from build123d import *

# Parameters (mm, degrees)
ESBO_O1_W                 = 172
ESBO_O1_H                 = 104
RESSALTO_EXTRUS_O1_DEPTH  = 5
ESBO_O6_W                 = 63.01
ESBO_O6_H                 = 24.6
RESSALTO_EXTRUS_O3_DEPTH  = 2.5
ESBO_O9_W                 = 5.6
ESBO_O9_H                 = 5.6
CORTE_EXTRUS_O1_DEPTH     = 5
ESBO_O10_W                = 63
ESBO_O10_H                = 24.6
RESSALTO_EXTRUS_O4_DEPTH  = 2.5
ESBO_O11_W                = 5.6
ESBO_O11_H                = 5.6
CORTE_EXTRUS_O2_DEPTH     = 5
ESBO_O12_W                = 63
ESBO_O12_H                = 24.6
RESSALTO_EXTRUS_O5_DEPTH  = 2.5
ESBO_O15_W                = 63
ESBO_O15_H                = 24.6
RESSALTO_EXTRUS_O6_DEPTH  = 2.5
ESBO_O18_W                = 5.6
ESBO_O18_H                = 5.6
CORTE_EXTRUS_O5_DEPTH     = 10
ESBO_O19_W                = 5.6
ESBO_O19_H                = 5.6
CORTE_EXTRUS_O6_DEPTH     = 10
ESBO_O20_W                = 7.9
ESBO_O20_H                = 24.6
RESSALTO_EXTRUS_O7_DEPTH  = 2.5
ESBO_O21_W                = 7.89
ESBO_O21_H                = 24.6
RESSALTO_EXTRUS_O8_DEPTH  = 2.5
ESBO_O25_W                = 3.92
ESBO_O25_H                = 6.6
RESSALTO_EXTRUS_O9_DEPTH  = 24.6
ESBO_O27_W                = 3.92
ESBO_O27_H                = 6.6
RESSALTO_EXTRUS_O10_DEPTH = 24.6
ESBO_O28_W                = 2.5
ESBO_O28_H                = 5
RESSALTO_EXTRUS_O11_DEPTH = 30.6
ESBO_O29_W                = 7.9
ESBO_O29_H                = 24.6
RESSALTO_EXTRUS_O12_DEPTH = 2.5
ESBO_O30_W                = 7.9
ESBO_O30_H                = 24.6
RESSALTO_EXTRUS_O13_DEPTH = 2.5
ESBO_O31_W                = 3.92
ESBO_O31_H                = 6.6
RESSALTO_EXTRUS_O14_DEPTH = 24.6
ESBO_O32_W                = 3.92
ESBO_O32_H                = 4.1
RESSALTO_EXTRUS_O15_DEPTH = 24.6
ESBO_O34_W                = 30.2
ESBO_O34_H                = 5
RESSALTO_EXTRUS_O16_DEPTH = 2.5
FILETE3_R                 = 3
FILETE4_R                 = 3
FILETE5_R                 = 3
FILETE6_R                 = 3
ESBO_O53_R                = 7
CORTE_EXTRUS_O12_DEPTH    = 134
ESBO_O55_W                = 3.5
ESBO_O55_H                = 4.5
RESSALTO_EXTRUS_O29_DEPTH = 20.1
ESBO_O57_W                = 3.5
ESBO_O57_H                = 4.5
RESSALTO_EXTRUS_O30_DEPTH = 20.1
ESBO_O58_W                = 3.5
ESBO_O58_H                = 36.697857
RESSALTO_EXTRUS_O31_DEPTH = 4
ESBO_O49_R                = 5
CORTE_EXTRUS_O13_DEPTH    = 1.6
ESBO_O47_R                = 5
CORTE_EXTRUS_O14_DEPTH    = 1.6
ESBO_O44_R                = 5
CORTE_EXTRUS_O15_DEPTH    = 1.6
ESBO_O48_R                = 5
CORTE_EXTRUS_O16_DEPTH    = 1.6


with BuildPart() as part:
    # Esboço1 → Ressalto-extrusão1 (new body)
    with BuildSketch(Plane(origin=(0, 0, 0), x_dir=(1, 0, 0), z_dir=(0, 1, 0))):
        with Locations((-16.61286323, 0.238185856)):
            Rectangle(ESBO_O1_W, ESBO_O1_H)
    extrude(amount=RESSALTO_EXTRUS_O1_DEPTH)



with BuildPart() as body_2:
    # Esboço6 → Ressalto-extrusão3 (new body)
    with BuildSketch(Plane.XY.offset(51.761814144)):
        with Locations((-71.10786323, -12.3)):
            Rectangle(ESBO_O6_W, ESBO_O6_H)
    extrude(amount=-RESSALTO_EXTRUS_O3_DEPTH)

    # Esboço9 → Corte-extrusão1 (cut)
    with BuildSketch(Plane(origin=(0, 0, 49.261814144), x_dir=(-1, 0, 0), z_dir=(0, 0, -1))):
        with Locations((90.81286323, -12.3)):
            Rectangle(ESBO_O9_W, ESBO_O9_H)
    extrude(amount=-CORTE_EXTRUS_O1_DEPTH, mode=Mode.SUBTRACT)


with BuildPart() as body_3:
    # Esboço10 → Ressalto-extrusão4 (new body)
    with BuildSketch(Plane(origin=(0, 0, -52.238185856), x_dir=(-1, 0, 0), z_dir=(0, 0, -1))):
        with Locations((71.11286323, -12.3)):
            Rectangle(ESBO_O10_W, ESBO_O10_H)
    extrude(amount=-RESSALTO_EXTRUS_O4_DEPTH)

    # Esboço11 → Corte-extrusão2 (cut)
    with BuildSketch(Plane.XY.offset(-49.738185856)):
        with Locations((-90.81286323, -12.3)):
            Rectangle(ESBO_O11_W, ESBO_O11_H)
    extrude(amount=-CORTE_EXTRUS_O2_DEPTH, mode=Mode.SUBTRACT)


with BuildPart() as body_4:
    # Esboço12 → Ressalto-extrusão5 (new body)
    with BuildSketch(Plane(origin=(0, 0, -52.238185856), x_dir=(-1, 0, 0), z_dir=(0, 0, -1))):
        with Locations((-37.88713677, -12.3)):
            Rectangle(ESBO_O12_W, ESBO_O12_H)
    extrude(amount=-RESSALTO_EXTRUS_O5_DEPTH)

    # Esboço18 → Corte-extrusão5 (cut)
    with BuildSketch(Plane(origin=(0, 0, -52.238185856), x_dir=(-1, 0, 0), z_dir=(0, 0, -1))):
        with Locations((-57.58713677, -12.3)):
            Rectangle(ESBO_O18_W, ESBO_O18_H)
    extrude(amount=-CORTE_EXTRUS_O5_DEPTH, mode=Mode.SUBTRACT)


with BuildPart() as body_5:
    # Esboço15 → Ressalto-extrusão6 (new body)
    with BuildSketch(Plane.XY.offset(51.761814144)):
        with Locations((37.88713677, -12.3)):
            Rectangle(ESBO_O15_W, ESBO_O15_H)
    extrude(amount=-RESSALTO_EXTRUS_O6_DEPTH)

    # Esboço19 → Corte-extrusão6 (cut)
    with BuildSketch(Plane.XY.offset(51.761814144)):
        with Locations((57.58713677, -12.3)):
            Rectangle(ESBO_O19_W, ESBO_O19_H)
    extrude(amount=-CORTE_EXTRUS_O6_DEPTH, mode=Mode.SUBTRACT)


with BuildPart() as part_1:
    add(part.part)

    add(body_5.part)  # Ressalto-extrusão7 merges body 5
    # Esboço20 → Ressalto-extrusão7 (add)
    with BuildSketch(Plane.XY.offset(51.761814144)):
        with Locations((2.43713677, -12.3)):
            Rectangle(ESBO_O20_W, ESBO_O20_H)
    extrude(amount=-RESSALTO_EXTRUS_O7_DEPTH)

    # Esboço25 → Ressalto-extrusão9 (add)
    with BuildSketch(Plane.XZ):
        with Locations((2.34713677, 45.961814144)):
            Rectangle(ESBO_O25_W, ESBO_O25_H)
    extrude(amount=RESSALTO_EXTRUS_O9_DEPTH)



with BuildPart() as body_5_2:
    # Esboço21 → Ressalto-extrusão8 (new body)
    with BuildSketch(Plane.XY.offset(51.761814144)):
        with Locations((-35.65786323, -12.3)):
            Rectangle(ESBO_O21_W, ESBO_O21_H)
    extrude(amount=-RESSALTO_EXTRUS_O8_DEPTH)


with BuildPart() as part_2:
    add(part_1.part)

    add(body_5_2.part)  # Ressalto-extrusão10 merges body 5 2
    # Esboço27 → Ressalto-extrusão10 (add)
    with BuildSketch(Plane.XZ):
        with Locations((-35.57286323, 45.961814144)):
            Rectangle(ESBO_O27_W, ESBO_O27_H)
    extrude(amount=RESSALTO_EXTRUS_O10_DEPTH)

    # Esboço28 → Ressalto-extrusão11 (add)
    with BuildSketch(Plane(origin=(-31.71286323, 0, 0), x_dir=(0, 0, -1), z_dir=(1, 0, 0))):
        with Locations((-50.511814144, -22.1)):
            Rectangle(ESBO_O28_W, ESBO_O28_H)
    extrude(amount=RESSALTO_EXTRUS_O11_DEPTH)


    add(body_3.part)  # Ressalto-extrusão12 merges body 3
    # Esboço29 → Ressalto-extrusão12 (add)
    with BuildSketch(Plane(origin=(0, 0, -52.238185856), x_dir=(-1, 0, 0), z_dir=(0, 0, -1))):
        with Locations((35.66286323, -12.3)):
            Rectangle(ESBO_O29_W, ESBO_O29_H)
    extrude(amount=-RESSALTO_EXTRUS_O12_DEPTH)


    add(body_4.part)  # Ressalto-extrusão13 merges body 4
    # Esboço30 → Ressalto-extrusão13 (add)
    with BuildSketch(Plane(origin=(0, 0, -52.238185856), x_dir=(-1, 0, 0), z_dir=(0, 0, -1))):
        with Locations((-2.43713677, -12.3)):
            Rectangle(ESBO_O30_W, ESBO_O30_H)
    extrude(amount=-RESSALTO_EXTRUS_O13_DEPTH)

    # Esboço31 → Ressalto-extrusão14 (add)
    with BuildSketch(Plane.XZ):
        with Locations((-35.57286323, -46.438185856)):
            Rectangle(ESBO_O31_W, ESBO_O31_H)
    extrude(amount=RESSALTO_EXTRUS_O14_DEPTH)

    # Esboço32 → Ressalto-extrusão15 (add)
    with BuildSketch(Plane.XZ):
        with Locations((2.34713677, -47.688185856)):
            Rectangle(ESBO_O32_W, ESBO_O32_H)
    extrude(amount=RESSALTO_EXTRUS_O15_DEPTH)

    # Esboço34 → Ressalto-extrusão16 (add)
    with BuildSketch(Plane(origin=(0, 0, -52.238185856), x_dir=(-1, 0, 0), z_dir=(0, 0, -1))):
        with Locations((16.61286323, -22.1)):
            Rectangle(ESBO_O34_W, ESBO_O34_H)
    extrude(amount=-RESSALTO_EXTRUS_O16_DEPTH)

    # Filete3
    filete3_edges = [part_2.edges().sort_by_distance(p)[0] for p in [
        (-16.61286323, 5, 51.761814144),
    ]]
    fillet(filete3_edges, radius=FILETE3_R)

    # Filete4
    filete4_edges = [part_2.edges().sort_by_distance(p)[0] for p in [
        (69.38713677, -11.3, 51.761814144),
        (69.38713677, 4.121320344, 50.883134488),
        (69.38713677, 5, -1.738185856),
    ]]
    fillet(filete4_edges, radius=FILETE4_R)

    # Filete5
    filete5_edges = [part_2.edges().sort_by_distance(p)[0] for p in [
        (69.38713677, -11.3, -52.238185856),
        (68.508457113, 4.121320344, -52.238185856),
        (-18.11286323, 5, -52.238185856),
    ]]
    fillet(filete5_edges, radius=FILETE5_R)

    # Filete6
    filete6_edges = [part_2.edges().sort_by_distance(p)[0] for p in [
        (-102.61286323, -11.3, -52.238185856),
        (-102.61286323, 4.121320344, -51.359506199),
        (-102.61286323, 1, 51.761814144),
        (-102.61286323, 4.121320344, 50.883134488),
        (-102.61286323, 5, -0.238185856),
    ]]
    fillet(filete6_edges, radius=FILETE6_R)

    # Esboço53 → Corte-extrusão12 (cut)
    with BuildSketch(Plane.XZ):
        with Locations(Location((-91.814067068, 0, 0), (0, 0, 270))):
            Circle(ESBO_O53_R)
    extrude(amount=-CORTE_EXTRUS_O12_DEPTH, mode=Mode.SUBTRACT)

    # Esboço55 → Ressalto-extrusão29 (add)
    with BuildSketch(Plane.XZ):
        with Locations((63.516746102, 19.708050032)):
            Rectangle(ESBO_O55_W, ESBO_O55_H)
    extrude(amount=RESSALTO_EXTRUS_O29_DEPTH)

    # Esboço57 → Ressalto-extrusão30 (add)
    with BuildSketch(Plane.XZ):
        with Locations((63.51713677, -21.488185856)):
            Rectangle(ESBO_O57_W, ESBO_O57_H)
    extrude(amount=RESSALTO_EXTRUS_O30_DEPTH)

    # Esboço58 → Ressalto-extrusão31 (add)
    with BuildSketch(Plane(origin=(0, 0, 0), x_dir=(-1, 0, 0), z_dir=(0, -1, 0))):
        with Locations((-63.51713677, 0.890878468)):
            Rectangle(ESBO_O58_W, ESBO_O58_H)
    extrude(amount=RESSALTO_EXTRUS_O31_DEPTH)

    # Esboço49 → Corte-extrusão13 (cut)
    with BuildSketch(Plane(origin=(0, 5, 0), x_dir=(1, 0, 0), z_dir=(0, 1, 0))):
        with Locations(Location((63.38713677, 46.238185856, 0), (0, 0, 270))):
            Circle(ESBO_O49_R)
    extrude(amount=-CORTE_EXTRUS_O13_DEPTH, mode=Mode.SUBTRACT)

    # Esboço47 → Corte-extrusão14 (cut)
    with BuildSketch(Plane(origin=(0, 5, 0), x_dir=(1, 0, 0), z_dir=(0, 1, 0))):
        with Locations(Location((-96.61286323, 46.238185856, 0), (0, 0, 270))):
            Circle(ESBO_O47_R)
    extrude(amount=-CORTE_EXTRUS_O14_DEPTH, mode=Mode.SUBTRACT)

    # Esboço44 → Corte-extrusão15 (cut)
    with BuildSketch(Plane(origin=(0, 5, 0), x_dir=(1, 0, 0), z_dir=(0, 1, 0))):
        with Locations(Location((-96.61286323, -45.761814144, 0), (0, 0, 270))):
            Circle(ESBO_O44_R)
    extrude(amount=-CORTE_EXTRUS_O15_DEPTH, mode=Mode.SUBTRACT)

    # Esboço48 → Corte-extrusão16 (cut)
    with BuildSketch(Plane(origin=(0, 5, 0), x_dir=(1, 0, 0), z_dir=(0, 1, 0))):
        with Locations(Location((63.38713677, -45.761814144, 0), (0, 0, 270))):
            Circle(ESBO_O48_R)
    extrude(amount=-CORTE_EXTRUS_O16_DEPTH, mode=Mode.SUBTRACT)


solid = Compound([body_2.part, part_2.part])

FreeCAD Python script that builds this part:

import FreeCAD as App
import Part
import Sketcher
Q = App.Units.Quantity


def edges_at(feature, points):
    """Names of the edges that pass closest to the given points."""
    edges = feature.Shape.Edges
    near = lambda p: min(range(len(edges)), key=lambda i: edges[i].distToShape(Part.Vertex(*p))[0])
    return sorted({f"Edge{near(p) + 1}" for p in points})


def add_polygon(sketch, points):
    """Adds a closed chain of lines whose ends are joined by coincident constraints."""
    first, n = sketch.GeometryCount, len(points)
    for a, b in zip(points, points[1:] + points[:1]):
        sketch.addGeometry(Part.LineSegment(App.Vector(*a, 0), App.Vector(*b, 0)), False)
    for i in range(n):
        sketch.addConstraint(Sketcher.Constraint("Coincident", first + i, 2, first + (i + 1) % n, 1))

doc = App.newDocument("Part")
body = doc.addObject("PartDesign::Body", "Body")

# Sketch on XZ plane
sketch1 = body.newObject("Sketcher::SketchObject", "Sketch")
sketch1.AttachmentSupport = (doc.getObject("XZ_Plane"), [""])
sketch1.MapMode = "FlatFace"
add_polygon(sketch1, [(-103, -52), (-103, 52), (69, 52), (69, -52)])  # lines 0-3
sketch1.addConstraint([
    Sketcher.Constraint("Vertical", 0),
    Sketcher.Constraint("Horizontal", 1),
    Sketcher.Constraint("Vertical", 2),
    Sketcher.Constraint("Horizontal", 3),
    Sketcher.Constraint("DistanceX", 1, 1, 1, 2, Q("172 mm")),
    Sketcher.Constraint("DistanceY", 0, 1, 0, 2, Q("104 mm")),
    Sketcher.Constraint("DistanceX", 0, 2, -1, 1, Q("102.612863 mm")),
    Sketcher.Constraint("DistanceY", -1, 1, 0, 2, Q("51.761814 mm")),
])
pad1 = body.newObject("PartDesign::Pad", "Pad")
pad1.Profile = sketch1
pad1.Length = 5
pad1.Reversed = True
body2 = doc.addObject("PartDesign::Body", "Body001")

# Sketch on XY plane
sketch2 = body2.newObject("Sketcher::SketchObject", "Sketch001")
sketch2.AttachmentSupport = (doc.getObject("XY_Plane001"), [""])
sketch2.MapMode = "FlatFace"
sketch2.AttachmentOffset = App.Placement(App.Vector(0, 0, 51.761814), App.Rotation())
add_polygon(sketch2, [(-103, 0), (-103, -25), (-40, -25), (-40, 0)])  # lines 0-3
sketch2.addConstraint([
    Sketcher.Constraint("Vertical", 0),
    Sketcher.Constraint("Horizontal", 1),
    Sketcher.Constraint("Vertical", 2),
    Sketcher.Constraint("Horizontal", 3),
    Sketcher.Constraint("PointOnObject", 2, 2, -1),
    Sketcher.Constraint("DistanceY", 0, 2, 0, 1, Q("24.6 mm")),
    Sketcher.Constraint("DistanceX", 1, 1, 1, 2, Q("63.01 mm")),
    Sketcher.Constraint("DistanceX", 0, 2, -1, 1, Q("102.612863 mm")),
])
pad2 = body2.newObject("PartDesign::Pad", "Pad001")
pad2.Profile = sketch2
pad2.Length = 2.5
pad2.Reversed = True

# Sketch on XY plane
sketch3 = body2.newObject("Sketcher::SketchObject", "Sketch002")
sketch3.AttachmentSupport = (doc.getObject("XY_Plane001"), [""])
sketch3.MapMode = "FlatFace"
sketch3.AttachmentOffset = App.Placement(App.Vector(0, 0, 49.261814), App.Rotation())
add_polygon(sketch3, [(-88, -10), (-88, -15), (-94, -15), (-94, -10)])  # lines 0-3
sketch3.addConstraint([
    Sketcher.Constraint("Vertical", 0),
    Sketcher.Constraint("Horizontal", 1),
    Sketcher.Constraint("Vertical", 2),
    Sketcher.Constraint("Horizontal", 3),
    Sketcher.Constraint("Equal", 3, 0),
    Sketcher.Constraint("DistanceX", 1, 2, 1, 1, Q("5.6 mm")),
    Sketcher.Constraint("DistanceY", 0, 2, -1, 1, Q("15.1 mm")),
    Sketcher.Constraint("DistanceX", 0, 2, -1, 1, Q("88.012863 mm")),
])
pocket1 = body2.newObject("PartDesign::Pocket", "Pocket")
pocket1.Profile = sketch3
pocket1.Length = 5
pocket1.Reversed = True
body3 = doc.addObject("PartDesign::Body", "Body002")

# Sketch on XY plane
sketch4 = body3.newObject("Sketcher::SketchObject", "Sketch003")
sketch4.AttachmentSupport = (doc.getObject("XY_Plane002"), [""])
sketch4.MapMode = "FlatFace"
sketch4.AttachmentOffset = App.Placement(App.Vector(0, 0, -52.238186), App.Rotation())
add_polygon(sketch4, [(-40, 0), (-40, -25), (-103, -25), (-103, 0)])  # lines 0-3
sketch4.addConstraint([
    Sketcher.Constraint("Vertical", 0),
    Sketcher.Constraint("Horizontal", 1),
    Sketcher.Constraint("Vertical", 2),
    Sketcher.Constraint("Horizontal", 3),
    Sketcher.Constraint("PointOnObject", 2, 2, -1),
    Sketcher.Constraint("DistanceX", 1, 2, 1, 1, Q("63 mm")),
    Sketcher.Constraint("DistanceY", 0, 2, 0, 1, Q("24.6 mm")),
    Sketcher.Constraint("DistanceX", 0, 2, -1, 1, Q("39.612863 mm")),
])
pad3 = body3.newObject("PartDesign::Pad", "Pad002")
pad3.Profile = sketch4
pad3.Length = 2.5

# Sketch on XY plane
sketch5 = body3.newObject("Sketcher::SketchObject", "Sketch004")
sketch5.AttachmentSupport = (doc.getObject("XY_Plane002"), [""])
sketch5.MapMode = "FlatFace"
sketch5.AttachmentOffset = App.Placement(App.Vector(0, 0, -49.738186), App.Rotation())
add_polygon(sketch5, [(-94, -10), (-94, -15), (-88, -15), (-88, -10)])  # lines 0-3
sketch5.addConstraint([
    Sketcher.Constraint("Vertical", 0),
    Sketcher.Constraint("Horizontal", 1),
    Sketcher.Constraint("Vertical", 2),
    Sketcher.Constraint("Horizontal", 3),
    Sketcher.Constraint("Equal", 3, 0),
    Sketcher.Constraint("DistanceX", 1, 1, 1, 2, Q("5.6 mm")),
    Sketcher.Constraint("DistanceY", 0, 2, -1, 1, Q("15.1 mm")),
    Sketcher.Constraint("DistanceX", 0, 2, -1, 1, Q("93.612863 mm")),
])
pocket2 = body3.newObject("PartDesign::Pocket", "Pocket001")
pocket2.Profile = sketch5
pocket2.Length = 5
body4 = doc.addObject("PartDesign::Body", "Body003")

# Sketch on XY plane
sketch6 = body4.newObject("Sketcher::SketchObject", "Sketch005")
sketch6.AttachmentSupport = (doc.getObject("XY_Plane003"), [""])
sketch6.MapMode = "FlatFace"
sketch6.AttachmentOffset = App.Placement(App.Vector(0, 0, -52.238186), App.Rotation())
add_polygon(sketch6, [(69, 0), (69, -25), (6, -25), (6, 0)])  # lines 0-3
sketch6.addConstraint([
    Sketcher.Constraint("Vertical", 0),
    Sketcher.Constraint("Horizontal", 1),
    Sketcher.Constraint("Vertical", 2),
    Sketcher.Constraint("Horizontal", 3),
    Sketcher.Constraint("PointOnObject", 2, 2, -1),
    Sketcher.Constraint("DistanceX", 1, 2, 1, 1, Q("63 mm")),
    Sketcher.Constraint("DistanceY", 0, 2, 0, 1, Q("24.6 mm")),
    Sketcher.Constraint("DistanceX", -1, 1, 0, 2, Q("69.387137 mm")),
])
pad4 = body4.newObject("PartDesign::Pad", "Pad003")
pad4.Profile = sketch6
pad4.Length = 2.5

# Sketch on XY plane
sketch7 = body4.newObject("Sketcher::SketchObject", "Sketch006")
sketch7.AttachmentSupport = (doc.getObject("XY_Plane003"), [""])
sketch7.MapMode = "FlatFace"
sketch7.AttachmentOffset = App.Placement(App.Vector(0, 0, -52.238186), App.Rotation())
add_polygon(sketch7, [(60, -10), (60, -15), (55, -15), (55, -10)])  # lines 0-3
sketch7.addConstraint([
    Sketcher.Constraint("Vertical", 0),
    Sketcher.Constraint("Horizontal", 1),
    Sketcher.Constraint("Vertical", 2),
    Sketcher.Constraint("Horizontal", 3),
    Sketcher.Constraint("Equal", 3, 0),
    Sketcher.Constraint("DistanceX", 1, 2, 1, 1, Q("5.6 mm")),
    Sketcher.Constraint("DistanceY", 0, 2, -1, 1, Q("15.1 mm")),
    Sketcher.Constraint("DistanceX", -1, 1, 0, 2, Q("60.387137 mm")),
])
pocket3 = body4.newObject("PartDesign::Pocket", "Pocket002")
pocket3.Profile = sketch7
pocket3.Length = 10
pocket3.Reversed = True
body5 = doc.addObject("PartDesign::Body", "Body004")

# Sketch on XY plane
sketch8 = body5.newObject("Sketcher::SketchObject", "Sketch007")
sketch8.AttachmentSupport = (doc.getObject("XY_Plane004"), [""])
sketch8.MapMode = "FlatFace"
sketch8.AttachmentOffset = App.Placement(App.Vector(0, 0, 51.761814), App.Rotation())
add_polygon(sketch8, [(6, 0), (6, -25), (69, -25), (69, 0)])  # lines 0-3
sketch8.addConstraint([
    Sketcher.Constraint("Vertical", 0),
    Sketcher.Constraint("Horizontal", 1),
    Sketcher.Constraint("Vertical", 2),
    Sketcher.Constraint("Horizontal", 3),
    Sketcher.Constraint("PointOnObject", 2, 2, -1),
    Sketcher.Constraint("DistanceX", 1, 1, 1, 2, Q("63 mm")),
    Sketcher.Constraint("DistanceY", 0, 2, 0, 1, Q("24.6 mm")),
    Sketcher.Constraint("DistanceX", -1, 1, 0, 2, Q("6.387137 mm")),
])
pad5 = body5.newObject("PartDesign::Pad", "Pad004")
pad5.Profile = sketch8
pad5.Length = 2.5
pad5.Reversed = True

# Sketch on XY plane
sketch9 = body5.newObject("Sketcher::SketchObject", "Sketch008")
sketch9.AttachmentSupport = (doc.getObject("XY_Plane004"), [""])
sketch9.MapMode = "FlatFace"
sketch9.AttachmentOffset = App.Placement(App.Vector(0, 0, 51.761814), App.Rotation())
add_polygon(sketch9, [(55, -10), (55, -15), (60, -15), (60, -10)])  # lines 0-3
sketch9.addConstraint([
    Sketcher.Constraint("Vertical", 0),
    Sketcher.Constraint("Horizontal", 1),
    Sketcher.Constraint("Vertical", 2),
    Sketcher.Constraint("Horizontal", 3),
    Sketcher.Constraint("Equal", 3, 0),
    Sketcher.Constraint("DistanceX", 1, 1, 1, 2, Q("5.6 mm")),
    Sketcher.Constraint("DistanceY", 0, 2, -1, 1, Q("15.1 mm")),
    Sketcher.Constraint("DistanceX", -1, 1, 0, 2, Q("54.787137 mm")),
])
pocket4 = body5.newObject("PartDesign::Pocket", "Pocket003")
pocket4.Profile = sketch9
pocket4.Length = 10
doc.recompute()

boolean = body.newObject("PartDesign::Boolean", "Boolean")
boolean.Type = "Fuse"
boolean.addObjects([body5])

# Sketch on XY plane
sketch10 = body.newObject("Sketcher::SketchObject", "Sketch009")
sketch10.AttachmentSupport = (doc.getObject("XY_Plane"), [""])
sketch10.MapMode = "FlatFace"
sketch10.AttachmentOffset = App.Placement(App.Vector(0, 0, 51.761814), App.Rotation())
add_polygon(sketch10, [(-2, 0), (-2, -25), (6, -25), (6, 0)])  # lines 0-3
sketch10.addConstraint([
    Sketcher.Constraint("Vertical", 0),
    Sketcher.Constraint("Horizontal", 1),
    Sketcher.Constraint("Vertical", 2),
    Sketcher.Constraint("Horizontal", 3),
    Sketcher.Constraint("PointOnObject", 2, 2, -1),
    Sketcher.Constraint("DistanceX", 1, 1, 1, 2, Q("7.9 mm")),
    Sketcher.Constraint("DistanceY", 0, 2, 0, 1, Q("24.6 mm")),
    Sketcher.Constraint("DistanceX", 0, 2, -1, 1, Q("1.512863 mm")),
])
pad6 = body.newObject("PartDesign::Pad", "Pad005")
pad6.Profile = sketch10
pad6.Length = 2.5
pad6.Reversed = True

# Sketch on XZ plane
sketch11 = body.newObject("Sketcher::SketchObject", "Sketch010")
sketch11.AttachmentSupport = (doc.getObject("XZ_Plane"), [""])
sketch11.MapMode = "FlatFace"
add_polygon(sketch11, [(0.4, 49.3), (0.4, 42.7), (4.3, 42.7), (4.3, 49.3)])  # lines 0-3
sketch11.addConstraint([
    Sketcher.Constraint("Vertical", 0),
    Sketcher.Constraint("Horizontal", 1),
    Sketcher.Constraint("Vertical", 2),
    Sketcher.Constraint("Horizontal", 3),
    Sketcher.Constraint("DistanceY", 0, 2, 0, 1, Q("6.6 mm")),
    Sketcher.Constraint("DistanceX", 1, 1, 1, 2, Q("3.92 mm")),
    Sketcher.Constraint("DistanceX", -1, 1, 0, 2, Q("0.387137 mm")),
    Sketcher.Constraint("DistanceY", -1, 1, 0, 2, Q("42.661814 mm")),
])
pad7 = body.newObject("PartDesign::Pad", "Pad006")
pad7.Profile = sketch11
pad7.Length = 24.6
body6 = doc.addObject("PartDesign::Body", "Body005")

# Sketch on XY plane
sketch12 = body6.newObject("Sketcher::SketchObject", "Sketch011")
sketch12.AttachmentSupport = (doc.getObject("XY_Plane005"), [""])
sketch12.MapMode = "FlatFace"
sketch12.AttachmentOffset = App.Placement(App.Vector(0, 0, 51.761814), App.Rotation())
add_polygon(sketch12, [(-40, 0), (-40, -25), (-32, -25), (-32, 0)])  # lines 0-3
sketch12.addConstraint([
    Sketcher.Constraint("Vertical", 0),
    Sketcher.Constraint("Horizontal", 1),
    Sketcher.Constraint("Vertical", 2),
    Sketcher.Constraint("Horizontal", 3),
    Sketcher.Constraint("PointOnObject", 2, 2, -1),
    Sketcher.Constraint("DistanceY", 0, 2, 0, 1, Q("24.6 mm")),
    Sketcher.Constraint("DistanceX", 1, 1, 1, 2, Q("7.89 mm")),
    Sketcher.Constraint("DistanceX", 0, 2, -1, 1, Q("39.602863 mm")),
])
pad8 = body6.newObject("PartDesign::Pad", "Pad007")
pad8.Profile = sketch12
pad8.Length = 2.5
pad8.Reversed = True
doc.recompute()

boolean2 = body.newObject("PartDesign::Boolean", "Boolean001")
boolean2.Type = "Fuse"
boolean2.addObjects([body6])

# Sketch on XZ plane
sketch13 = body.newObject("Sketcher::SketchObject", "Sketch012")
sketch13.AttachmentSupport = (doc.getObject("XZ_Plane"), [""])
sketch13.MapMode = "FlatFace"
add_polygon(sketch13, [(-37.5, 49.3), (-37.5, 42.7), (-33.6, 42.7), (-33.6, 49.3)])  # lines 0-3
sketch13.addConstraint([
    Sketcher.Constraint("Vertical", 0),
    Sketcher.Constraint("Horizontal", 1),
    Sketcher.Constraint("Vertical", 2),
    Sketcher.Constraint("Horizontal", 3),
    Sketcher.Constraint("DistanceY", 0, 2, 0, 1, Q("6.6 mm")),
    Sketcher.Constraint("DistanceX", 1, 1, 1, 2, Q("3.92 mm")),
    Sketcher.Constraint("DistanceX", 0, 2, -1, 1, Q("37.532863 mm")),
    Sketcher.Constraint("DistanceY", -1, 1, 0, 2, Q("42.661814 mm")),
])
pad9 = body.newObject("PartDesign::Pad", "Pad008")
pad9.Profile = sketch13
pad9.Length = 24.6

# Sketch on YZ plane
sketch14 = body.newObject("Sketcher::SketchObject", "Sketch013")
sketch14.AttachmentSupport = (doc.getObject("YZ_Plane"), [""])
sketch14.MapMode = "FlatFace"
sketch14.AttachmentOffset = App.Placement(App.Vector(0, 0, -31.712863), App.Rotation())
add_polygon(sketch14, [(-19.6, 51.8), (-24.6, 51.8), (-24.6, 49.3), (-19.6, 49.3)])  # lines 0-3
sketch14.addConstraint([
    Sketcher.Constraint("Horizontal", 0),
    Sketcher.Constraint("Vertical", 1),
    Sketcher.Constraint("Horizontal", 2),
    Sketcher.Constraint("Vertical", 3),
    Sketcher.Constraint("DistanceX", 0, 2, 0, 1, Q("5 mm")),
    Sketcher.Constraint("DistanceY", 1, 2, 1, 1, Q("2.5 mm")),
    Sketcher.Constraint("DistanceX", 0, 2, -1, 1, Q("24.6 mm")),
    Sketcher.Constraint("DistanceY", -1, 1, 0, 2, Q("51.761814 mm")),
])
pad10 = body.newObject("PartDesign::Pad", "Pad009")
pad10.Profile = sketch14
pad10.Length = 30.6
doc.recompute()

boolean3 = body.newObject("PartDesign::Boolean", "Boolean002")
boolean3.Type = "Fuse"
boolean3.addObjects([body3])

# Sketch on XY plane
sketch15 = body.newObject("Sketcher::SketchObject", "Sketch014")
sketch15.AttachmentSupport = (doc.getObject("XY_Plane"), [""])
sketch15.MapMode = "FlatFace"
sketch15.AttachmentOffset = App.Placement(App.Vector(0, 0, -52.238186), App.Rotation())
add_polygon(sketch15, [(-32, 0), (-32, -25), (-40, -25), (-40, 0)])  # lines 0-3
sketch15.addConstraint([
    Sketcher.Constraint("Vertical", 0),
    Sketcher.Constraint("Horizontal", 1),
    Sketcher.Constraint("Vertical", 2),
    Sketcher.Constraint("Horizontal", 3),
    Sketcher.Constraint("PointOnObject", 2, 2, -1),
    Sketcher.Constraint("DistanceX", 1, 2, 1, 1, Q("7.9 mm")),
    Sketcher.Constraint("DistanceY", 0, 2, 0, 1, Q("24.6 mm")),
    Sketcher.Constraint("DistanceX", 0, 2, -1, 1, Q("31.712863 mm")),
])
pad11 = body.newObject("PartDesign::Pad", "Pad010")
pad11.Profile = sketch15
pad11.Length = 2.5
doc.recompute()

boolean4 = body.newObject("PartDesign::Boolean", "Boolean003")
boolean4.Type = "Fuse"
boolean4.addObjects([body4])

# Sketch on XY plane
sketch16 = body.newObject("Sketcher::SketchObject", "Sketch015")
sketch16.AttachmentSupport = (doc.getObject("XY_Plane"), [""])
sketch16.MapMode = "FlatFace"
sketch16.AttachmentOffset = App.Placement(App.Vector(0, 0, -52.238186), App.Rotation())
add_polygon(sketch16, [(6, 0), (6, -25), (-2, -25), (-2, 0)])  # lines 0-3
sketch16.addConstraint([
    Sketcher.Constraint("Vertical", 0),
    Sketcher.Constraint("Horizontal", 1),
    Sketcher.Constraint("Vertical", 2),
    Sketcher.Constraint("Horizontal", 3),
    Sketcher.Constraint("PointOnObject", 2, 2, -1),
    Sketcher.Constraint("DistanceX", 1, 2, 1, 1, Q("7.9 mm")),
    Sketcher.Constraint("DistanceY", 0, 2, 0, 1, Q("24.6 mm")),
    Sketcher.Constraint("DistanceX", -1, 1, 0, 2, Q("6.387137 mm")),
])
pad12 = body.newObject("PartDesign::Pad", "Pad011")
pad12.Profile = sketch16
pad12.Length = 2.5

# Sketch on XZ plane
sketch17 = body.newObject("Sketcher::SketchObject", "Sketch016")
sketch17.AttachmentSupport = (doc.getObject("XZ_Plane"), [""])
sketch17.MapMode = "FlatFace"
add_polygon(sketch17, [(-37.5, -43.1), (-37.5, -49.7), (-33.6, -49.7), (-33.6, -43.1)])  # lines 0-3
sketch17.addConstraint([
    Sketcher.Constraint("Vertical", 0),
    Sketcher.Constraint("Horizontal", 1),
    Sketcher.Constraint("Vertical", 2),
    Sketcher.Constraint("Horizontal", 3),
    Sketcher.Constraint("DistanceY", 0, 2, 0, 1, Q("6.6 mm")),
    Sketcher.Constraint("DistanceX", 1, 1, 1, 2, Q("3.92 mm")),
    Sketcher.Constraint("DistanceX", 0, 2, -1, 1, Q("37.532863 mm")),
    Sketcher.Constraint("DistanceY", 0, 2, -1, 1, Q("49.738186 mm")),
])
pad13 = body.newObject("PartDesign::Pad", "Pad012")
pad13.Profile = sketch17
pad13.Length = 24.6

# Sketch on XZ plane
sketch18 = body.newObject("Sketcher::SketchObject", "Sketch017")
sketch18.AttachmentSupport = (doc.getObject("XZ_Plane"), [""])
sketch18.MapMode = "FlatFace"
add_polygon(sketch18, [(0.4, -45.6), (0.4, -49.7), (4.3, -49.7), (4.3, -45.6)])  # lines 0-3
sketch18.addConstraint([
    Sketcher.Constraint("Vertical", 0),
    Sketcher.Constraint("Horizontal", 1),
    Sketcher.Constraint("Vertical", 2),
    Sketcher.Constraint("Horizontal", 3),
    Sketcher.Constraint("DistanceY", 0, 2, 0, 1, Q("4.1 mm")),
    Sketcher.Constraint("DistanceX", 1, 1, 1, 2, Q("3.92 mm")),
    Sketcher.Constraint("DistanceX", -1, 1, 0, 2, Q("0.387137 mm")),
    Sketcher.Constraint("DistanceY", 0, 2, -1, 1, Q("49.738186 mm")),
])
pad14 = body.newObject("PartDesign::Pad", "Pad013")
pad14.Profile = sketch18
pad14.Length = 24.6

# Sketch on XY plane
sketch19 = body.newObject("Sketcher::SketchObject", "Sketch018")
sketch19.AttachmentSupport = (doc.getObject("XY_Plane"), [""])
sketch19.MapMode = "FlatFace"
sketch19.AttachmentOffset = App.Placement(App.Vector(0, 0, -52.238186), App.Rotation())
add_polygon(sketch19, [(-2, -20), (-2, -25), (-32, -25), (-32, -20)])  # lines 0-3
sketch19.addConstraint([
    Sketcher.Constraint("Vertical", 0),
    Sketcher.Constraint("Horizontal", 1),
    Sketcher.Constraint("Vertical", 2),
    Sketcher.Constraint("Horizontal", 3),
    Sketcher.Constraint("DistanceY", 0, 2, 0, 1, Q("5 mm")),
    Sketcher.Constraint("DistanceX", 1, 2, 1, 1, Q("30.2 mm")),
    Sketcher.Constraint("DistanceY", 0, 2, -1, 1, Q("24.6 mm")),
    Sketcher.Constraint("DistanceX", 0, 2, -1, 1, Q("1.512863 mm")),
])
pad15 = body.newObject("PartDesign::Pad", "Pad014")
pad15.Profile = sketch19
pad15.Length = 2.5
doc.recompute()

fillet = body.newObject("PartDesign::Fillet", "Fillet")
fillet.Base = (pad15, edges_at(pad15, [(-16.613, 5, 51.762)]))
fillet.Radius = 3
doc.recompute()

fillet2 = body.newObject("PartDesign::Fillet", "Fillet001")
fillet2.Base = (fillet, edges_at(fillet, [(69.387, -11.3, 51.762), (69.387, 4.121, 50.883), (69.387, 5, -1.738)]))
fillet2.Radius = 3
doc.recompute()

fillet3 = body.newObject("PartDesign::Fillet", "Fillet002")
fillet3.Base = (fillet2, edges_at(fillet2, [(69.387, -11.3, -52.238), (68.508, 4.121, -52.238), (-18.113, 5, -52.238)]))
fillet3.Radius = 3
doc.recompute()

fillet4 = body.newObject("PartDesign::Fillet", "Fillet003")
fillet4.Base = (fillet3, edges_at(fillet3, [
    (-102.613, -11.3, -52.238),
    (-102.613, 4.121, -51.36),
    (-102.613, 1, 51.762),
    (-102.613, 4.121, 50.883),
    (-102.613, 5, -0.238),
]))
fillet4.Radius = 3

# Sketch on XZ plane
sketch20 = body.newObject("Sketcher::SketchObject", "Sketch019")
sketch20.AttachmentSupport = (doc.getObject("XZ_Plane"), [""])
sketch20.MapMode = "FlatFace"
sketch20.addGeometry(Part.Circle(App.Vector(-92, 0, 0), App.Vector(0, 0, 1), 7), False)
sketch20.addConstraint([
    Sketcher.Constraint("PointOnObject", 0, 3, -1),
    Sketcher.Constraint("Diameter", 0, Q("14 mm")),
    Sketcher.Constraint("DistanceX", 0, 3, -1, 1, Q("91.814067 mm")),
])
pocket5 = body.newObject("PartDesign::Pocket", "Pocket004")
pocket5.Profile = sketch20
pocket5.Length = 134

# Sketch on XZ plane
sketch21 = body.newObject("Sketcher::SketchObject", "Sketch020")
sketch21.AttachmentSupport = (doc.getObject("XZ_Plane"), [""])
sketch21.MapMode = "FlatFace"
add_polygon(sketch21, [(61.8, 22), (61.8, 17.5), (65.3, 17.5), (65.3, 22)])  # lines 0-3
sketch21.addConstraint([
    Sketcher.Constraint("Vertical", 0),
    Sketcher.Constraint("Horizontal", 1),
    Sketcher.Constraint("Vertical", 2),
    Sketcher.Constraint("Horizontal", 3),
    Sketcher.Constraint("DistanceX", 1, 1, 1, 2, Q("3.5 mm")),
    Sketcher.Constraint("DistanceY", 0, 2, 0, 1, Q("4.5 mm")),
    Sketcher.Constraint("DistanceY", -1, 1, 0, 2, Q("17.45805 mm")),
    Sketcher.Constraint("DistanceX", -1, 1, 0, 2, Q("61.766746 mm")),
])
pad16 = body.newObject("PartDesign::Pad", "Pad015")
pad16.Profile = sketch21
pad16.Length = 20.1

# Sketch on XZ plane
sketch22 = body.newObject("Sketcher::SketchObject", "Sketch021")
sketch22.AttachmentSupport = (doc.getObject("XZ_Plane"), [""])
sketch22.MapMode = "FlatFace"
add_polygon(sketch22, [(61.8, -19.2), (61.8, -23.7), (65.3, -23.7), (65.3, -19.2)])  # lines 0-3
sketch22.addConstraint([
    Sketcher.Constraint("Vertical", 0),
    Sketcher.Constraint("Horizontal", 1),
    Sketcher.Constraint("Vertical", 2),
    Sketcher.Constraint("Horizontal", 3),
    Sketcher.Constraint("DistanceX", 1, 1, 1, 2, Q("3.5 mm")),
    Sketcher.Constraint("DistanceY", 0, 2, 0, 1, Q("4.5 mm")),
    Sketcher.Constraint("DistanceX", -1, 1, 0, 2, Q("61.767137 mm")),
    Sketcher.Constraint("DistanceY", 0, 2, -1, 1, Q("23.738186 mm")),
])
pad17 = body.newObject("PartDesign::Pad", "Pad016")
pad17.Profile = sketch22
pad17.Length = 20.1

# Sketch on XZ plane
sketch23 = body.newObject("Sketcher::SketchObject", "Sketch022")
sketch23.AttachmentSupport = (doc.getObject("XZ_Plane"), [""])
sketch23.MapMode = "FlatFace"
add_polygon(sketch23, [(65.3, -19.2), (65.3, 17.5), (61.8, 17.5), (61.8, -19.2)])  # lines 0-3
sketch23.addConstraint([
    Sketcher.Constraint("Vertical", 0),
    Sketcher.Constraint("Horizontal", 1),
    Sketcher.Constraint("Vertical", 2),
    Sketcher.Constraint("Horizontal", 3),
    Sketcher.Constraint("DistanceX", 1, 2, 1, 1, Q("3.5 mm")),
    Sketcher.Constraint("DistanceY", 0, 1, 0, 2, Q("36.697857 mm")),
    Sketcher.Constraint("DistanceY", -1, 1, 0, 2, Q("17.45805 mm")),
    Sketcher.Constraint("DistanceX", -1, 1, 0, 2, Q("65.267137 mm")),
])
pad18 = body.newObject("PartDesign::Pad", "Pad017")
pad18.Profile = sketch23
pad18.Length = 4

# Sketch on XZ plane
sketch24 = body.newObject("Sketcher::SketchObject", "Sketch023")
sketch24.AttachmentSupport = (doc.getObject("XZ_Plane"), [""])
sketch24.MapMode = "FlatFace"
sketch24.AttachmentOffset = App.Placement(App.Vector(0, 0, -5), App.Rotation())
sketch24.addGeometry(Part.Circle(App.Vector(63, -46, 0), App.Vector(0, 0, 1), 5), False)
sketch24.addConstraint([
    Sketcher.Constraint("Diameter", 0, Q("10 mm")),
    Sketcher.Constraint("DistanceX", -1, 1, 0, 3, Q("63.387137 mm")),
    Sketcher.Constraint("DistanceY", 0, 3, -1, 1, Q("46.238186 mm")),
])
pocket6 = body.newObject("PartDesign::Pocket", "Pocket005")
pocket6.Profile = sketch24
pocket6.Length = 1.6
pocket6.Reversed = True

# Sketch on XZ plane
sketch25 = body.newObject("Sketcher::SketchObject", "Sketch024")
sketch25.AttachmentSupport = (doc.getObject("XZ_Plane"), [""])
sketch25.MapMode = "FlatFace"
sketch25.AttachmentOffset = App.Placement(App.Vector(0, 0, -5), App.Rotation())
sketch25.addGeometry(Part.Circle(App.Vector(-97, -46, 0), App.Vector(0, 0, 1), 5), False)
sketch25.addConstraint([
    Sketcher.Constraint("Diameter", 0, Q("10 mm")),
    Sketcher.Constraint("DistanceX", 0, 3, -1, 1, Q("96.612863 mm")),
    Sketcher.Constraint("DistanceY", 0, 3, -1, 1, Q("46.238186 mm")),
])
pocket7 = body.newObject("PartDesign::Pocket", "Pocket006")
pocket7.Profile = sketch25
pocket7.Length = 1.6
pocket7.Reversed = True

# Sketch on XZ plane
sketch26 = body.newObject("Sketcher::SketchObject", "Sketch025")
sketch26.AttachmentSupport = (doc.getObject("XZ_Plane"), [""])
sketch26.MapMode = "FlatFace"
sketch26.AttachmentOffset = App.Placement(App.Vector(0, 0, -5), App.Rotation())
sketch26.addGeometry(Part.Circle(App.Vector(-97, 46, 0), App.Vector(0, 0, 1), 5), False)
sketch26.addConstraint([
    Sketcher.Constraint("Diameter", 0, Q("10 mm")),
    Sketcher.Constraint("DistanceX", 0, 3, -1, 1, Q("96.612863 mm")),
    Sketcher.Constraint("DistanceY", -1, 1, 0, 3, Q("45.761814 mm")),
])
pocket8 = body.newObject("PartDesign::Pocket", "Pocket007")
pocket8.Profile = sketch26
pocket8.Length = 1.6
pocket8.Reversed = True

# Sketch on XZ plane
sketch27 = body.newObject("Sketcher::SketchObject", "Sketch026")
sketch27.AttachmentSupport = (doc.getObject("XZ_Plane"), [""])
sketch27.MapMode = "FlatFace"
sketch27.AttachmentOffset = App.Placement(App.Vector(0, 0, -5), App.Rotation())
sketch27.addGeometry(Part.Circle(App.Vector(63, 46, 0), App.Vector(0, 0, 1), 5), False)
sketch27.addConstraint([
    Sketcher.Constraint("Diameter", 0, Q("10 mm")),
    Sketcher.Constraint("DistanceX", -1, 1, 0, 3, Q("63.387137 mm")),
    Sketcher.Constraint("DistanceY", -1, 1, 0, 3, Q("45.761814 mm")),
])
pocket9 = body.newObject("PartDesign::Pocket", "Pocket008")
pocket9.Profile = sketch27
pocket9.Length = 1.6
pocket9.Reversed = True

doc.recompute()
